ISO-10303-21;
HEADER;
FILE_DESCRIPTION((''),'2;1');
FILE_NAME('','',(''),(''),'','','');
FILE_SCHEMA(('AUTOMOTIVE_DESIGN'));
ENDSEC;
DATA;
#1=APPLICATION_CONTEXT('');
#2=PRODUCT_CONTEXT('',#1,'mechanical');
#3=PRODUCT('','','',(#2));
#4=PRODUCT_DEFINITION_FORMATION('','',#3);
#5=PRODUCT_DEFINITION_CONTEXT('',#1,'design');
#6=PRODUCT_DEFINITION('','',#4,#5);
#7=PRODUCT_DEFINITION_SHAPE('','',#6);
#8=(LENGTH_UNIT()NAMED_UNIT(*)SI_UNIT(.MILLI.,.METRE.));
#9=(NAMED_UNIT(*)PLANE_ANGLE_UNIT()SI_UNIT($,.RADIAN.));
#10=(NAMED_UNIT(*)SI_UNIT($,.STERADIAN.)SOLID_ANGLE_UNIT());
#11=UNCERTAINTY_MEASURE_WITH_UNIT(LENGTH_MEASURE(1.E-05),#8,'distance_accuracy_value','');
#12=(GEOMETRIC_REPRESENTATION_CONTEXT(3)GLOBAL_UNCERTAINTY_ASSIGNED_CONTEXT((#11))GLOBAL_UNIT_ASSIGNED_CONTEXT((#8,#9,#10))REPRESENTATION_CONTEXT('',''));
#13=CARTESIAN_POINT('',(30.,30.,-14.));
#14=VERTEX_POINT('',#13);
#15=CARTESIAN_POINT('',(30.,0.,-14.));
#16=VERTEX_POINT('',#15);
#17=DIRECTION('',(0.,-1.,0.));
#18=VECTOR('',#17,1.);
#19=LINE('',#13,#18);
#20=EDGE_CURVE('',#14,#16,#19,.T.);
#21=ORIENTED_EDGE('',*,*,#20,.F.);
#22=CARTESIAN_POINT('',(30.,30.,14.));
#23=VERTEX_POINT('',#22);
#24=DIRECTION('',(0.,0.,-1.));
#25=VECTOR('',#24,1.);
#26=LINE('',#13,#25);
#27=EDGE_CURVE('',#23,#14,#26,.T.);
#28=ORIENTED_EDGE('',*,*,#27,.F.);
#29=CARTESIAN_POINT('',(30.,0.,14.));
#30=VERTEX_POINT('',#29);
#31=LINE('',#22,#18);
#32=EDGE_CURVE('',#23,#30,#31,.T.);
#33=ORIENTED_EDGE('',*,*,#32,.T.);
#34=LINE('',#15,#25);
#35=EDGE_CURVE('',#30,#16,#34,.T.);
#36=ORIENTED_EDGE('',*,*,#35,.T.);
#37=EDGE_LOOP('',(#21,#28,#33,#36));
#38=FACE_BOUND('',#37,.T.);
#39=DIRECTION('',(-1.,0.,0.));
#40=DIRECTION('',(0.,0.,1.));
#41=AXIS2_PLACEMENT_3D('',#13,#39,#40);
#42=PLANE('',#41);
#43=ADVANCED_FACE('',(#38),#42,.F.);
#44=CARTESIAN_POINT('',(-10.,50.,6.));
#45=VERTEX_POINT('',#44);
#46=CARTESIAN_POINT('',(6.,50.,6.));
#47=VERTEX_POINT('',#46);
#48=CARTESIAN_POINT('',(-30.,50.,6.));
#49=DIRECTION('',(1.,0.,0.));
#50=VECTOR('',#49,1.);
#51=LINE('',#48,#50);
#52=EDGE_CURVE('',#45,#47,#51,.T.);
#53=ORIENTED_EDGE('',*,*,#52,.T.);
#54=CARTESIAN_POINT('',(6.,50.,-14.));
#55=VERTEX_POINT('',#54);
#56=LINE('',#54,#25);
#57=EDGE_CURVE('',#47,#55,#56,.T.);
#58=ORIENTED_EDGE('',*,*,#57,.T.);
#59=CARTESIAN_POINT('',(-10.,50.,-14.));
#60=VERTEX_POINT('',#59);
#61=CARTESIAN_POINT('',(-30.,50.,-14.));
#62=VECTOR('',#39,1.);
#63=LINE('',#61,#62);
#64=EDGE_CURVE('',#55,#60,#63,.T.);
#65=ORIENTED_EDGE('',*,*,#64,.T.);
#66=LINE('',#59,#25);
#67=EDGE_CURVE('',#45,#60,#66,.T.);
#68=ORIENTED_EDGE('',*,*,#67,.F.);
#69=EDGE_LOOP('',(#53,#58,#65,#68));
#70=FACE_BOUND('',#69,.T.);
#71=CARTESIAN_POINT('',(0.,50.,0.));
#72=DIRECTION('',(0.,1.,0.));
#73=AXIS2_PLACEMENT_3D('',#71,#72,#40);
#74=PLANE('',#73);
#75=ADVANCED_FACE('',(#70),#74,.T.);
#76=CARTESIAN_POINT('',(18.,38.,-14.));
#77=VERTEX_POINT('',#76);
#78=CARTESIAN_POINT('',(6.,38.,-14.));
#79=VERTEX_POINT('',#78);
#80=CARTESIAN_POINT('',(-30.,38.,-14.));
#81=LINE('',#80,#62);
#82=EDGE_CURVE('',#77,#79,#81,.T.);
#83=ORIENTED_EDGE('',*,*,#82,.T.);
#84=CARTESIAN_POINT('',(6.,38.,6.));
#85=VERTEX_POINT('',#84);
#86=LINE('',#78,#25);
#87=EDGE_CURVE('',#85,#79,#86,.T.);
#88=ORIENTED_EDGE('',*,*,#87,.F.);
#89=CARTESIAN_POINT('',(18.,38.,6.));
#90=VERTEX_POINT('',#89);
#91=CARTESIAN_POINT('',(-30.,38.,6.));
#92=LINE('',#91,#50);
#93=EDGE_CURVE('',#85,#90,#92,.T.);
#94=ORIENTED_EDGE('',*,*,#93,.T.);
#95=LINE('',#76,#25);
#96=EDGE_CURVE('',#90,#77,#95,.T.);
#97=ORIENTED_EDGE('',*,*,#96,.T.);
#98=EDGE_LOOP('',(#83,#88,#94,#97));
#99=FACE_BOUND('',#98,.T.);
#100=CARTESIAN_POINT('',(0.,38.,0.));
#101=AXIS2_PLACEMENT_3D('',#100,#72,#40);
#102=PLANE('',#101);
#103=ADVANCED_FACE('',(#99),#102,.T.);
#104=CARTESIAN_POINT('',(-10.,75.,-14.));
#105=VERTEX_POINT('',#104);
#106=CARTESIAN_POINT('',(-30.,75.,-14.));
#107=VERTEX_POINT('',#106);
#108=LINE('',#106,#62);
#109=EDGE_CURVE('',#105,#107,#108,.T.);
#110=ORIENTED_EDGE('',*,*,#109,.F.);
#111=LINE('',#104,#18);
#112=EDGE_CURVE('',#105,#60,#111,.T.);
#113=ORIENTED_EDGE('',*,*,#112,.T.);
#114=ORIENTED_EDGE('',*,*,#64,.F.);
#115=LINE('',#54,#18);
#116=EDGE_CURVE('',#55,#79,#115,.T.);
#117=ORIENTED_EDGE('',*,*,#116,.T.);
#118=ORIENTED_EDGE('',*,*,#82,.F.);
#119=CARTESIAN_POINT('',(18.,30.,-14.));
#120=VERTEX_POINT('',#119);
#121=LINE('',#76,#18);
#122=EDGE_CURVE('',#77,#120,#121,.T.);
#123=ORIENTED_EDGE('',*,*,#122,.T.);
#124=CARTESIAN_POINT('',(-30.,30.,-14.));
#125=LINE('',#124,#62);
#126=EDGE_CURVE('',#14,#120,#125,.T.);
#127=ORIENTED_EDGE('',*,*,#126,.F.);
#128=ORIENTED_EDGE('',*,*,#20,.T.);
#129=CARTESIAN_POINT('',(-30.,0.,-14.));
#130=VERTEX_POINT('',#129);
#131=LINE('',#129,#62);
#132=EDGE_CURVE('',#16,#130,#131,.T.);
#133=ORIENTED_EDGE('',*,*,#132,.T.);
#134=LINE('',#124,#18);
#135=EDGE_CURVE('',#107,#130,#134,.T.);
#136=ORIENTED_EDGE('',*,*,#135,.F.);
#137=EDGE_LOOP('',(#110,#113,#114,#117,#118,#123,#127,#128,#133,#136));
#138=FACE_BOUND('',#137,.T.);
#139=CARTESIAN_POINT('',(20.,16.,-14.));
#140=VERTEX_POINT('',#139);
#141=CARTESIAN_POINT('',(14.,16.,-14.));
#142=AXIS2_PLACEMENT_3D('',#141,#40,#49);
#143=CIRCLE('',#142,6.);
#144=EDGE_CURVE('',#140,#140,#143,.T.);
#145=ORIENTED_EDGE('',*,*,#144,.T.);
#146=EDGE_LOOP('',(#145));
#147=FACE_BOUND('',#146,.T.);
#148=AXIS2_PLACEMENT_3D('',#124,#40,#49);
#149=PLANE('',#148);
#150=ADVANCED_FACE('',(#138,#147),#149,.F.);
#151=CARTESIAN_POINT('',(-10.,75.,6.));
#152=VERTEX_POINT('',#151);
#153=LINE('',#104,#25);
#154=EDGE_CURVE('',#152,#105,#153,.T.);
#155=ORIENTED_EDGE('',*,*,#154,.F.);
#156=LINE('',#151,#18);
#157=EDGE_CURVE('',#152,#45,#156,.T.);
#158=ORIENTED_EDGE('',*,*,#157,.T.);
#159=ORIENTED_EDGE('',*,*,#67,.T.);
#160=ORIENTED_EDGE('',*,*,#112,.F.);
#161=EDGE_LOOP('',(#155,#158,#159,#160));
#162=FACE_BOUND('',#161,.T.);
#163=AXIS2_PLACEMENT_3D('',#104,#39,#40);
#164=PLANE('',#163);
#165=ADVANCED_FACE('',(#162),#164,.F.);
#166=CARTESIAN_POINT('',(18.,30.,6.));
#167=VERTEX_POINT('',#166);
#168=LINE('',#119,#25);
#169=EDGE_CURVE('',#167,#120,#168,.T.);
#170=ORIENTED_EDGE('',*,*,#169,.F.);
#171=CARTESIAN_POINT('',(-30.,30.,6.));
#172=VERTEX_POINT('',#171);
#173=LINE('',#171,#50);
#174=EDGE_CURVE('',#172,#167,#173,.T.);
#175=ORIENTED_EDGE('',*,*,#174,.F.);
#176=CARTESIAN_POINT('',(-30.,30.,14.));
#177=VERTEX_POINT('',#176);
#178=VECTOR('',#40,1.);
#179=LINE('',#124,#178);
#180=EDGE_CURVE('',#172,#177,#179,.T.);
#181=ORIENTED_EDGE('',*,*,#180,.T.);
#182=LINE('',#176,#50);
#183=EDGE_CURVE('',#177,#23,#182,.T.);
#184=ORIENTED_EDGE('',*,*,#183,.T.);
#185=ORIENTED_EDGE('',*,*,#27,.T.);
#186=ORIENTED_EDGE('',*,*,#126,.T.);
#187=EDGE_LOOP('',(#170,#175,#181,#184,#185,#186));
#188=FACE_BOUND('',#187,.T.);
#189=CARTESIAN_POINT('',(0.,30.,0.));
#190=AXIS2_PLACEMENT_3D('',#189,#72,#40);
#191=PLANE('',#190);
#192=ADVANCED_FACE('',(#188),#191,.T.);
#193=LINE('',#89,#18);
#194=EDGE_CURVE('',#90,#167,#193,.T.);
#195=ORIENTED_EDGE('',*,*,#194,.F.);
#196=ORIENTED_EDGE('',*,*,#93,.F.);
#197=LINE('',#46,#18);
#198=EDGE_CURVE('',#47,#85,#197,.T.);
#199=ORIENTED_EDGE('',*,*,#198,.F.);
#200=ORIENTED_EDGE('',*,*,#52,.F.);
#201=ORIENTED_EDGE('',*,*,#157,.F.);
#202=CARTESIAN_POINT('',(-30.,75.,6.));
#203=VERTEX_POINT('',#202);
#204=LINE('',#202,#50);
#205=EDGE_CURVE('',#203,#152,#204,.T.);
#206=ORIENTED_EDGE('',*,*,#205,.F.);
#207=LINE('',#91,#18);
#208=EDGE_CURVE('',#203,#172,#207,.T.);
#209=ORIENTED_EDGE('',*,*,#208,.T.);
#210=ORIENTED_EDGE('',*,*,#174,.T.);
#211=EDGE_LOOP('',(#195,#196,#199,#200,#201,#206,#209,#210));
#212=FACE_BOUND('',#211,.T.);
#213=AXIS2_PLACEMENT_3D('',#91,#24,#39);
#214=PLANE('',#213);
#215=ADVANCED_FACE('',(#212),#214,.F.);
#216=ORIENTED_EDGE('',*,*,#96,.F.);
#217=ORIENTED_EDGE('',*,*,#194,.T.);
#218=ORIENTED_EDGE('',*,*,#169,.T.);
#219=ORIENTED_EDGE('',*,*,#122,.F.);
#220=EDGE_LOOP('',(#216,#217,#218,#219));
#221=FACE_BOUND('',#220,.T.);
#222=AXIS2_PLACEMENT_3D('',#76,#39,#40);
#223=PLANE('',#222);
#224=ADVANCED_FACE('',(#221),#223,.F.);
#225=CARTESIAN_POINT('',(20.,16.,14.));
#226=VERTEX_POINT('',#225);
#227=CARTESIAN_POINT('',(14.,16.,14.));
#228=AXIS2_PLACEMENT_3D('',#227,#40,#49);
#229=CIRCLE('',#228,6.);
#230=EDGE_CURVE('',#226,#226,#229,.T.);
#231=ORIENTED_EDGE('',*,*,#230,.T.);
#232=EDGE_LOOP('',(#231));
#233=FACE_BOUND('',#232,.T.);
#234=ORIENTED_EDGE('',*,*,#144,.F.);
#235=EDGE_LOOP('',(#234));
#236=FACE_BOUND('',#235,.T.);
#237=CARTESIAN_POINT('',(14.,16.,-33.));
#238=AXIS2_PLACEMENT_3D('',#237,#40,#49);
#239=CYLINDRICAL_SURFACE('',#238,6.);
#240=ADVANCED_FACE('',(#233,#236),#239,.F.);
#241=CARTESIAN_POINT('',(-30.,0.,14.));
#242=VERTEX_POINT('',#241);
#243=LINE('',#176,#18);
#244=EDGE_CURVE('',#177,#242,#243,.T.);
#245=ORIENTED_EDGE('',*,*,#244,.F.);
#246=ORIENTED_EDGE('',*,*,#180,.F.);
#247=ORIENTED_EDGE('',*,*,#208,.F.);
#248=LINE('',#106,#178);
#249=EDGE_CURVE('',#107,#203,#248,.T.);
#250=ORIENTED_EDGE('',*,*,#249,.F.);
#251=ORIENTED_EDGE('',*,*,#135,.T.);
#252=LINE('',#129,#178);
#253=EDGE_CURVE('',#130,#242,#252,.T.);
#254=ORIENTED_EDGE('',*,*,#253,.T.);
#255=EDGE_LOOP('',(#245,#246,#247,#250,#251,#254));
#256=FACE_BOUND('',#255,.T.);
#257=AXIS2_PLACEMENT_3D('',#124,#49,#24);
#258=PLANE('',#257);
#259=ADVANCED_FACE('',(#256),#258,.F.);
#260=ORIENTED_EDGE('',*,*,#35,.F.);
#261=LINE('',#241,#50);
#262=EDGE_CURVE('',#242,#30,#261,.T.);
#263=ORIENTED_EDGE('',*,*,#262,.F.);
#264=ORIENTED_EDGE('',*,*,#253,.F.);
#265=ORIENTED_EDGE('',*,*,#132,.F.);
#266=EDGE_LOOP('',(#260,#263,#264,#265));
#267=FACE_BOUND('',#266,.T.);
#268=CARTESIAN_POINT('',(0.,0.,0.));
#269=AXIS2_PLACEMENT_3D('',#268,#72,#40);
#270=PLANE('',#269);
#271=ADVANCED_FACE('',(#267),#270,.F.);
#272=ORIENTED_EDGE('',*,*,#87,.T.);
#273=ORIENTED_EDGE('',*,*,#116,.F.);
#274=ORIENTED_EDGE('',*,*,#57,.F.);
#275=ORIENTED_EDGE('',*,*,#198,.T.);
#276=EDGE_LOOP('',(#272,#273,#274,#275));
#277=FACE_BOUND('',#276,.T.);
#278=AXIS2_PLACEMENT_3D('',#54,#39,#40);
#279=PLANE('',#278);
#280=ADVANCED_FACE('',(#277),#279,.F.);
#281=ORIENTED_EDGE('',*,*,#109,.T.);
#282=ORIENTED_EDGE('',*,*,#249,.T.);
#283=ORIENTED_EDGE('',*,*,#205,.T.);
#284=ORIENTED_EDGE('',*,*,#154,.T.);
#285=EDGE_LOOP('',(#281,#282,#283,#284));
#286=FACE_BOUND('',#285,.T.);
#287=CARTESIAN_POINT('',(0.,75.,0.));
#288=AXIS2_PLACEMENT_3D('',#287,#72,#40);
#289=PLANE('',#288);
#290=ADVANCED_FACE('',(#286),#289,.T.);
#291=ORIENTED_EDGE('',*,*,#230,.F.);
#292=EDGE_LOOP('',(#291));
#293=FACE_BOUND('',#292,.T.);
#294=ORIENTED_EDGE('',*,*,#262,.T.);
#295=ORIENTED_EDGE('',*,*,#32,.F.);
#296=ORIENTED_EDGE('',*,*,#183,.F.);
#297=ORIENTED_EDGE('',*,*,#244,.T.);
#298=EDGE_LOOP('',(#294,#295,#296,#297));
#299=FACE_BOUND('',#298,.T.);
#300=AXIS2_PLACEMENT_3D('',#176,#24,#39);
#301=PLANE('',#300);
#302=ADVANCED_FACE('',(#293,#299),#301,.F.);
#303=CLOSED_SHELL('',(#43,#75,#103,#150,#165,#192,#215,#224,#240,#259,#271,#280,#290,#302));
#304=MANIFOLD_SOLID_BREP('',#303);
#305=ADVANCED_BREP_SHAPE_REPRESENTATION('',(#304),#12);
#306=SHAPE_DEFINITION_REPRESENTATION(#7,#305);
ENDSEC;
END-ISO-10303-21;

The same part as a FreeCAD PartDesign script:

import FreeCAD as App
import Part
import Sketcher

V = App.Vector
Q = App.Units.Quantity


def add_polygon(sketch, points):
    """Adds a closed chain of lines whose ends are joined by coincident constraints."""
    first, n = sketch.GeometryCount, len(points)
    for a, b in zip(points, points[1:] + points[:1]):
        sketch.addGeometry(Part.LineSegment(App.Vector(*a, 0), App.Vector(*b, 0)), False)
    for i in range(n):
        sketch.addConstraint(Sketcher.Constraint("Coincident", first + i, 2, first + (i + 1) % n, 1))

doc = App.newDocument("Part")
params = doc.addObject("Spreadsheet::Sheet", "Params")
for row, (alias, value) in enumerate([
    ("sketch1_width", "60 mm"),
    ("sketch1_height", "28 mm"),
    ("pad1_length", "30 mm"),
    ("sketch2_diameter", "12 mm"),
    ("pocket1_length", "47 mm"),
    ("sketch3_width", "48 mm"),
    ("sketch3_height", "20 mm"),
    ("pad2_length", "8 mm"),
    ("sketch4_width", "36 mm"),
    ("sketch4_height", "20 mm"),
    ("pad3_length", "12 mm"),
    ("sketch5_width", "20 mm"),
    ("pad4_length", "25 mm"),
], start=1):
    params.set(f"A{row}", alias)
    params.set(f"B{row}", "=" + value)
    params.setAlias(f"B{row}", alias)

body = doc.addObject("PartDesign::Body", "Body")

sketch1 = doc.addObject("Sketcher::SketchObject", "Sketch")
body.addObject(sketch1)
sketch1.AttachmentSupport = (doc.XZ_Plane, [""])
sketch1.MapMode = "FlatFace"
add_polygon(sketch1, [(-30, -14), (-30, 14), (30, 14), (30, -14)])
sketch1.addConstraint(Sketcher.Constraint("Vertical", 0))
sketch1.addConstraint(Sketcher.Constraint("Horizontal", 1))
sketch1.addConstraint(Sketcher.Constraint("Vertical", 2))
sketch1.addConstraint(Sketcher.Constraint("Horizontal", 3))
sketch1.addConstraint(Sketcher.Constraint("Symmetric", 0, 2, 2, 2, -1, 1))
sketch1.addConstraint(Sketcher.Constraint("DistanceX", 1, 1, 1, 2, Q("60 mm")))
sketch1.addConstraint(Sketcher.Constraint("DistanceY", 0, 1, 0, 2, Q("28 mm")))
sketch1.setExpression("Constraints[9]", "Params.sketch1_width")
sketch1.setExpression("Constraints[10]", "Params.sketch1_height")
pad1 = doc.addObject("PartDesign::Pad", "Pad")
body.addObject(pad1)
pad1.Profile = sketch1
pad1.setExpression("Length", "Params.pad1_length")
pad1.Reversed = True

sketch2 = doc.addObject("Sketcher::SketchObject", "Sketch001")
body.addObject(sketch2)
sketch2.AttachmentSupport = (doc.XY_Plane, [""])
sketch2.MapMode = "FlatFace"
sketch2.AttachmentOffset = App.Placement(V(0, 0, 14), App.Rotation())
sketch2.addGeometry(Part.Circle(V(14, 16, 0), V(0, 0, 1), 6), False)
sketch2.addConstraint(Sketcher.Constraint("Diameter", 0, Q("12 mm")))
sketch2.addConstraint(Sketcher.Constraint("DistanceX", -1, 1, 0, 3, Q("14 mm")))
sketch2.addConstraint(Sketcher.Constraint("DistanceY", -1, 1, 0, 3, Q("16 mm")))
sketch2.setExpression("Constraints[0]", "Params.sketch2_diameter")
pocket1 = doc.addObject("PartDesign::Pocket", "Pocket")
body.addObject(pocket1)
pocket1.Profile = sketch2
pocket1.setExpression("Length", "Params.pocket1_length")

sketch3 = doc.addObject("Sketcher::SketchObject", "Sketch002")
body.addObject(sketch3)
sketch3.AttachmentSupport = (doc.XZ_Plane, [""])
sketch3.MapMode = "FlatFace"
sketch3.AttachmentOffset = App.Placement(V(0, 0, -30), App.Rotation())
add_polygon(sketch3, [(-30, -14), (-30, 6), (18, 6), (18, -14)])
sketch3.addConstraint(Sketcher.Constraint("Vertical", 0))
sketch3.addConstraint(Sketcher.Constraint("Horizontal", 1))
sketch3.addConstraint(Sketcher.Constraint("Vertical", 2))
sketch3.addConstraint(Sketcher.Constraint("Horizontal", 3))
sketch3.addConstraint(Sketcher.Constraint("DistanceX", 1, 1, 1, 2, Q("48 mm")))
sketch3.addConstraint(Sketcher.Constraint("DistanceY", 0, 1, 0, 2, Q("20 mm")))
sketch3.addConstraint(Sketcher.Constraint("DistanceX", 0, 2, -1, 1, Q("30 mm")))
sketch3.addConstraint(Sketcher.Constraint("DistanceY", -1, 1, 0, 2, Q("6 mm")))
sketch3.setExpression("Constraints[8]", "Params.sketch3_width")
sketch3.setExpression("Constraints[9]", "Params.sketch3_height")
pad2 = doc.addObject("PartDesign::Pad", "Pad001")
body.addObject(pad2)
pad2.Profile = sketch3
pad2.setExpression("Length", "Params.pad2_length")
pad2.Reversed = True

sketch4 = doc.addObject("Sketcher::SketchObject", "Sketch003")
body.addObject(sketch4)
sketch4.AttachmentSupport = (doc.XZ_Plane, [""])
sketch4.MapMode = "FlatFace"
sketch4.AttachmentOffset = App.Placement(V(0, 0, -38), App.Rotation())
add_polygon(sketch4, [(-30, -14), (-30, 6), (6, 6), (6, -14)])
sketch4.addConstraint(Sketcher.Constraint("Vertical", 0))
sketch4.addConstraint(Sketcher.Constraint("Horizontal", 1))
sketch4.addConstraint(Sketcher.Constraint("Vertical", 2))
sketch4.addConstraint(Sketcher.Constraint("Horizontal", 3))
sketch4.addConstraint(Sketcher.Constraint("DistanceX", 1, 1, 1, 2, Q("36 mm")))
sketch4.addConstraint(Sketcher.Constraint("DistanceY", 0, 1, 0, 2, Q("20 mm")))
sketch4.addConstraint(Sketcher.Constraint("DistanceX", 0, 2, -1, 1, Q("30 mm")))
sketch4.addConstraint(Sketcher.Constraint("DistanceY", -1, 1, 0, 2, Q("6 mm")))
sketch4.setExpression("Constraints[8]", "Params.sketch4_width")
sketch4.setExpression("Constraints[9]", "Params.sketch4_height")
pad3 = doc.addObject("PartDesign::Pad", "Pad002")
body.addObject(pad3)
pad3.Profile = sketch4
pad3.setExpression("Length", "Params.pad3_length")
pad3.Reversed = True

sketch5 = doc.addObject("Sketcher::SketchObject", "Sketch004")
body.addObject(sketch5)
sketch5.AttachmentSupport = (doc.XZ_Plane, [""])
sketch5.MapMode = "FlatFace"
sketch5.AttachmentOffset = App.Placement(V(0, 0, -50), App.Rotation())
add_polygon(sketch5, [(-30, -14), (-30, 6), (-10, 6), (-10, -14)])
sketch5.addConstraint(Sketcher.Constraint("Vertical", 0))
sketch5.addConstraint(Sketcher.Constraint("Horizontal", 1))
sketch5.addConstraint(Sketcher.Constraint("Vertical", 2))
sketch5.addConstraint(Sketcher.Constraint("Horizontal", 3))
sketch5.addConstraint(Sketcher.Constraint("Equal", 3, 0))
sketch5.addConstraint(Sketcher.Constraint("DistanceX", 1, 1, 1, 2, Q("20 mm")))
sketch5.addConstraint(Sketcher.Constraint("DistanceX", 0, 2, -1, 1, Q("30 mm")))
sketch5.addConstraint(Sketcher.Constraint("DistanceY", -1, 1, 0, 2, Q("6 mm")))
sketch5.setExpression("Constraints[9]", "Params.sketch5_width")
pad4 = doc.addObject("PartDesign::Pad", "Pad003")
body.addObject(pad4)
pad4.Profile = sketch5
pad4.setExpression("Length", "Params.pad4_length")
pad4.Reversed = True

doc.recompute()
